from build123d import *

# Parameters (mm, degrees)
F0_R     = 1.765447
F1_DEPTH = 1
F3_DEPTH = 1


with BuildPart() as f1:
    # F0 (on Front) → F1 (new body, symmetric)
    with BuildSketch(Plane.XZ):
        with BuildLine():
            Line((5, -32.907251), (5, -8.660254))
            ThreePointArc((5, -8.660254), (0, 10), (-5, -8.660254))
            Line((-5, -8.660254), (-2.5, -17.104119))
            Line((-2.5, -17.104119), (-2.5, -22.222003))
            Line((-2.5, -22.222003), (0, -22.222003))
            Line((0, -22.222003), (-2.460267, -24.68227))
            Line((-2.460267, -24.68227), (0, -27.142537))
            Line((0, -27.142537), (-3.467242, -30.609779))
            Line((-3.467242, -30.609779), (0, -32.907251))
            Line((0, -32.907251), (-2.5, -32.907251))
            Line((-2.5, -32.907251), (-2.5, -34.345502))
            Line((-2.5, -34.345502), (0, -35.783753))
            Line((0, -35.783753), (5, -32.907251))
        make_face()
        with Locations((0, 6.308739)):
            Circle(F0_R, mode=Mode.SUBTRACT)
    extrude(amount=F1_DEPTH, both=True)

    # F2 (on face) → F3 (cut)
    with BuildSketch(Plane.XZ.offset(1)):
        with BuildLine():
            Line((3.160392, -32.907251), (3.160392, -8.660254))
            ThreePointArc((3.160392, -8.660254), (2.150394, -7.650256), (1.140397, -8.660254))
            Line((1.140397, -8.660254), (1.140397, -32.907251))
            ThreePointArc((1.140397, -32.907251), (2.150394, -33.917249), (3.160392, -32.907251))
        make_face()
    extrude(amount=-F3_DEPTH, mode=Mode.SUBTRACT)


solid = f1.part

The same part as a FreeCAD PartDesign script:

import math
import FreeCAD as App
import Part
import Sketcher

V = App.Vector

doc = App.newDocument("Part")
params = doc.addObject("Spreadsheet::Sheet", "Params")
for row, (alias, value) in enumerate([
    ("sketch1_radius", "10 mm"),
    ("sketch1_width", "2.5 mm"),
    ("pad1_length", "2 mm"),
    ("pocket1_length", "1 mm"),
], start=1):
    params.set(f"A{row}", alias)
    params.set(f"B{row}", "=" + value)
    params.setAlias(f"B{row}", alias)

body = doc.addObject("PartDesign::Body", "Body")

# Sketch on XZ plane
sketch1 = doc.addObject("Sketcher::SketchObject", "Sketch")
body.addObject(sketch1)
sketch1.AttachmentSupport = (doc.XZ_Plane, [""])
sketch1.MapMode = "FlatFace"
sketch1.addGeometry([
    Part.LineSegment(V(5, -32.907251, 0), V(5, -8.660254, 0)),  # 0
    Part.ArcOfCircle(Part.Circle(V(0, 0, 0), V(0, 0, 1), 10), math.radians(-60), math.radians(240)),  # 1
    Part.LineSegment(V(-5, -8.660254, 0), V(-2.5, -17.104119, 0)),  # 2
    Part.LineSegment(V(-2.5, -17.104119, 0), V(-2.5, -22.222003, 0)),  # 3
    Part.LineSegment(V(-2.5, -22.222003, 0), V(0, -22.222003, 0)),  # 4
    Part.LineSegment(V(0, -22.222003, 0), V(-2.460267, -24.68227, 0)),  # 5
    Part.LineSegment(V(-2.460267, -24.68227, 0), V(0, -27.142537, 0)),  # 6
    Part.LineSegment(V(0, -27.142537, 0), V(-3.467242, -30.609779, 0)),  # 7
    Part.LineSegment(V(-3.467242, -30.609779, 0), V(0, -32.907251, 0)),  # 8
    Part.LineSegment(V(0, -32.907251, 0), V(-2.5, -32.907251, 0)),  # 9
    Part.LineSegment(V(-2.5, -32.907251, 0), V(-2.5, -34.345502, 0)),  # 10
    Part.LineSegment(V(-2.5, -34.345502, 0), V(0, -35.783753, 0)),  # 11
    Part.LineSegment(V(0, -35.783753, 0), V(5, -32.907251, 0)),  # 12
    Part.Circle(V(0, 6.308739, 0), V(0, 0, 1), 1.765447),  # 13
], False)
sketch1.addConstraint([
    Sketcher.Constraint("Coincident", 0, 2, 1, 1),
    Sketcher.Constraint("Coincident", 1, 2, 2, 1),
    Sketcher.Constraint("Coincident", 2, 2, 3, 1),
    Sketcher.Constraint("Coincident", 3, 2, 4, 1),
    Sketcher.Constraint("Coincident", 4, 2, 5, 1),
    Sketcher.Constraint("Coincident", 5, 2, 6, 1),
    Sketcher.Constraint("Coincident", 6, 2, 7, 1),
    Sketcher.Constraint("Coincident", 7, 2, 8, 1),
    Sketcher.Constraint("Coincident", 8, 2, 9, 1),
    Sketcher.Constraint("Coincident", 9, 2, 10, 1),
    Sketcher.Constraint("Coincident", 10, 2, 11, 1),
    Sketcher.Constraint("Coincident", 11, 2, 12, 1),
    Sketcher.Constraint("Coincident", 12, 2, 0, 1),
    Sketcher.Constraint("Vertical", 0),
    Sketcher.Constraint("Vertical", 3),
    Sketcher.Constraint("Horizontal", 4),
    Sketcher.Constraint("Horizontal", 9),
    Sketcher.Constraint("Vertical", 10),
    Sketcher.Constraint("Coincident", 1, 3, -1, 1),
    Sketcher.Constraint("PointOnObject", 13, 3, -2),
    Sketcher.Constraint("PointOnObject", 4, 2, -2),
    Sketcher.Constraint("PointOnObject", 6, 2, -2),
    Sketcher.Constraint("PointOnObject", 8, 2, -2),
    Sketcher.Constraint("PointOnObject", 11, 2, -2),
    Sketcher.Constraint("Perpendicular", 5, 6),
    Sketcher.Constraint("Perpendicular", 6, 7),
    Sketcher.Constraint("Horizontal", 0, 2, 1, 2),
    Sketcher.Constraint("Horizontal", 9, 2, 12, 2),
    Sketcher.Constraint("Vertical", 3, 2, 9, 2),
    Sketcher.Constraint("Equal", 5, 6),
    Sketcher.Constraint("Radius", 1, 10.0),
    Sketcher.Constraint("DistanceX", 4, 1, 4, 2, 2.5),
    Sketcher.Constraint("DistanceX", -1, 1, 0, 2, 5.0),
    Sketcher.Constraint("Diameter", 13, 3.530894),
    Sketcher.Constraint("DistanceY", 10, 2, 10, 1, 1.438251),
    Sketcher.Constraint("DistanceY", 11, 2, 8, 2, 2.876502),
    Sketcher.Constraint("Distance", 7, 4.903421),
    Sketcher.Constraint("DistanceY", 0, 1, 0, 2, 24.246997),
    Sketcher.Constraint("DistanceY", 3, 2, 3, 1, 5.117884),
    Sketcher.Constraint("DistanceY", -1, 1, 13, 3, 6.308739),
    Sketcher.Constraint("DistanceY", 2, 2, -1, 1, 17.104119),
    Sketcher.Constraint("DistanceY", 5, 2, -1, 1, 24.68227),
])
sketch1.setExpression("Constraints[30]", "Params.sketch1_radius")
sketch1.setExpression("Constraints[31]", "Params.sketch1_width")
pad1 = doc.addObject("PartDesign::Pad", "Pad")
body.addObject(pad1)
pad1.Profile = sketch1
pad1.setExpression("Length", "Params.pad1_length")
pad1.Midplane = True

# Sketch on XZ plane
sketch2 = doc.addObject("Sketcher::SketchObject", "Sketch001")
body.addObject(sketch2)
sketch2.AttachmentSupport = (doc.XZ_Plane, [""])
sketch2.MapMode = "FlatFace"
sketch2.AttachmentOffset = App.Placement(V(0, 0, 1), App.Rotation())
sketch2.addGeometry([
    Part.LineSegment(V(3.160392, -32.907251, 0), V(3.160392, -8.660254, 0)),
    Part.ArcOfCircle(Part.Circle(V(2.150394, -8.660253, 0), V(0, 0, 1), 1.009998), math.radians(-0.000028), math.radians(180.000028)),
    Part.LineSegment(V(1.140397, -8.660254, 0), V(1.140397, -32.907251, 0)),
    Part.ArcOfCircle(Part.Circle(V(2.150394, -32.907252, 0), V(0, 0, 1), 1.009998), math.radians(179.999972), math.radians(360.000028)),
], False)
sketch2.addConstraint([
    Sketcher.Constraint("Tangent", 0, 2, 1, 1),
    Sketcher.Constraint("Tangent", 1, 2, 2, 1),
    Sketcher.Constraint("Tangent", 2, 2, 3, 1),
    Sketcher.Constraint("Tangent", 3, 2, 0, 1),
    Sketcher.Constraint("Vertical", 0),
    Sketcher.Constraint("Vertical", 2),
    Sketcher.Constraint("Radius", 1, 1.009998),
    Sketcher.Constraint("DistanceY", 3, 3, 1, 3, 24.246998),
    Sketcher.Constraint("DistanceY", 3, 3, -1, 1, 32.907252),
    Sketcher.Constraint("DistanceX", -1, 1, 0, 2, 3.160392),
])
pocket1 = doc.addObject("PartDesign::Pocket", "Pocket")
body.addObject(pocket1)
pocket1.Profile = sketch2
pocket1.setExpression("Length", "Params.pocket1_length")

doc.recompute()
